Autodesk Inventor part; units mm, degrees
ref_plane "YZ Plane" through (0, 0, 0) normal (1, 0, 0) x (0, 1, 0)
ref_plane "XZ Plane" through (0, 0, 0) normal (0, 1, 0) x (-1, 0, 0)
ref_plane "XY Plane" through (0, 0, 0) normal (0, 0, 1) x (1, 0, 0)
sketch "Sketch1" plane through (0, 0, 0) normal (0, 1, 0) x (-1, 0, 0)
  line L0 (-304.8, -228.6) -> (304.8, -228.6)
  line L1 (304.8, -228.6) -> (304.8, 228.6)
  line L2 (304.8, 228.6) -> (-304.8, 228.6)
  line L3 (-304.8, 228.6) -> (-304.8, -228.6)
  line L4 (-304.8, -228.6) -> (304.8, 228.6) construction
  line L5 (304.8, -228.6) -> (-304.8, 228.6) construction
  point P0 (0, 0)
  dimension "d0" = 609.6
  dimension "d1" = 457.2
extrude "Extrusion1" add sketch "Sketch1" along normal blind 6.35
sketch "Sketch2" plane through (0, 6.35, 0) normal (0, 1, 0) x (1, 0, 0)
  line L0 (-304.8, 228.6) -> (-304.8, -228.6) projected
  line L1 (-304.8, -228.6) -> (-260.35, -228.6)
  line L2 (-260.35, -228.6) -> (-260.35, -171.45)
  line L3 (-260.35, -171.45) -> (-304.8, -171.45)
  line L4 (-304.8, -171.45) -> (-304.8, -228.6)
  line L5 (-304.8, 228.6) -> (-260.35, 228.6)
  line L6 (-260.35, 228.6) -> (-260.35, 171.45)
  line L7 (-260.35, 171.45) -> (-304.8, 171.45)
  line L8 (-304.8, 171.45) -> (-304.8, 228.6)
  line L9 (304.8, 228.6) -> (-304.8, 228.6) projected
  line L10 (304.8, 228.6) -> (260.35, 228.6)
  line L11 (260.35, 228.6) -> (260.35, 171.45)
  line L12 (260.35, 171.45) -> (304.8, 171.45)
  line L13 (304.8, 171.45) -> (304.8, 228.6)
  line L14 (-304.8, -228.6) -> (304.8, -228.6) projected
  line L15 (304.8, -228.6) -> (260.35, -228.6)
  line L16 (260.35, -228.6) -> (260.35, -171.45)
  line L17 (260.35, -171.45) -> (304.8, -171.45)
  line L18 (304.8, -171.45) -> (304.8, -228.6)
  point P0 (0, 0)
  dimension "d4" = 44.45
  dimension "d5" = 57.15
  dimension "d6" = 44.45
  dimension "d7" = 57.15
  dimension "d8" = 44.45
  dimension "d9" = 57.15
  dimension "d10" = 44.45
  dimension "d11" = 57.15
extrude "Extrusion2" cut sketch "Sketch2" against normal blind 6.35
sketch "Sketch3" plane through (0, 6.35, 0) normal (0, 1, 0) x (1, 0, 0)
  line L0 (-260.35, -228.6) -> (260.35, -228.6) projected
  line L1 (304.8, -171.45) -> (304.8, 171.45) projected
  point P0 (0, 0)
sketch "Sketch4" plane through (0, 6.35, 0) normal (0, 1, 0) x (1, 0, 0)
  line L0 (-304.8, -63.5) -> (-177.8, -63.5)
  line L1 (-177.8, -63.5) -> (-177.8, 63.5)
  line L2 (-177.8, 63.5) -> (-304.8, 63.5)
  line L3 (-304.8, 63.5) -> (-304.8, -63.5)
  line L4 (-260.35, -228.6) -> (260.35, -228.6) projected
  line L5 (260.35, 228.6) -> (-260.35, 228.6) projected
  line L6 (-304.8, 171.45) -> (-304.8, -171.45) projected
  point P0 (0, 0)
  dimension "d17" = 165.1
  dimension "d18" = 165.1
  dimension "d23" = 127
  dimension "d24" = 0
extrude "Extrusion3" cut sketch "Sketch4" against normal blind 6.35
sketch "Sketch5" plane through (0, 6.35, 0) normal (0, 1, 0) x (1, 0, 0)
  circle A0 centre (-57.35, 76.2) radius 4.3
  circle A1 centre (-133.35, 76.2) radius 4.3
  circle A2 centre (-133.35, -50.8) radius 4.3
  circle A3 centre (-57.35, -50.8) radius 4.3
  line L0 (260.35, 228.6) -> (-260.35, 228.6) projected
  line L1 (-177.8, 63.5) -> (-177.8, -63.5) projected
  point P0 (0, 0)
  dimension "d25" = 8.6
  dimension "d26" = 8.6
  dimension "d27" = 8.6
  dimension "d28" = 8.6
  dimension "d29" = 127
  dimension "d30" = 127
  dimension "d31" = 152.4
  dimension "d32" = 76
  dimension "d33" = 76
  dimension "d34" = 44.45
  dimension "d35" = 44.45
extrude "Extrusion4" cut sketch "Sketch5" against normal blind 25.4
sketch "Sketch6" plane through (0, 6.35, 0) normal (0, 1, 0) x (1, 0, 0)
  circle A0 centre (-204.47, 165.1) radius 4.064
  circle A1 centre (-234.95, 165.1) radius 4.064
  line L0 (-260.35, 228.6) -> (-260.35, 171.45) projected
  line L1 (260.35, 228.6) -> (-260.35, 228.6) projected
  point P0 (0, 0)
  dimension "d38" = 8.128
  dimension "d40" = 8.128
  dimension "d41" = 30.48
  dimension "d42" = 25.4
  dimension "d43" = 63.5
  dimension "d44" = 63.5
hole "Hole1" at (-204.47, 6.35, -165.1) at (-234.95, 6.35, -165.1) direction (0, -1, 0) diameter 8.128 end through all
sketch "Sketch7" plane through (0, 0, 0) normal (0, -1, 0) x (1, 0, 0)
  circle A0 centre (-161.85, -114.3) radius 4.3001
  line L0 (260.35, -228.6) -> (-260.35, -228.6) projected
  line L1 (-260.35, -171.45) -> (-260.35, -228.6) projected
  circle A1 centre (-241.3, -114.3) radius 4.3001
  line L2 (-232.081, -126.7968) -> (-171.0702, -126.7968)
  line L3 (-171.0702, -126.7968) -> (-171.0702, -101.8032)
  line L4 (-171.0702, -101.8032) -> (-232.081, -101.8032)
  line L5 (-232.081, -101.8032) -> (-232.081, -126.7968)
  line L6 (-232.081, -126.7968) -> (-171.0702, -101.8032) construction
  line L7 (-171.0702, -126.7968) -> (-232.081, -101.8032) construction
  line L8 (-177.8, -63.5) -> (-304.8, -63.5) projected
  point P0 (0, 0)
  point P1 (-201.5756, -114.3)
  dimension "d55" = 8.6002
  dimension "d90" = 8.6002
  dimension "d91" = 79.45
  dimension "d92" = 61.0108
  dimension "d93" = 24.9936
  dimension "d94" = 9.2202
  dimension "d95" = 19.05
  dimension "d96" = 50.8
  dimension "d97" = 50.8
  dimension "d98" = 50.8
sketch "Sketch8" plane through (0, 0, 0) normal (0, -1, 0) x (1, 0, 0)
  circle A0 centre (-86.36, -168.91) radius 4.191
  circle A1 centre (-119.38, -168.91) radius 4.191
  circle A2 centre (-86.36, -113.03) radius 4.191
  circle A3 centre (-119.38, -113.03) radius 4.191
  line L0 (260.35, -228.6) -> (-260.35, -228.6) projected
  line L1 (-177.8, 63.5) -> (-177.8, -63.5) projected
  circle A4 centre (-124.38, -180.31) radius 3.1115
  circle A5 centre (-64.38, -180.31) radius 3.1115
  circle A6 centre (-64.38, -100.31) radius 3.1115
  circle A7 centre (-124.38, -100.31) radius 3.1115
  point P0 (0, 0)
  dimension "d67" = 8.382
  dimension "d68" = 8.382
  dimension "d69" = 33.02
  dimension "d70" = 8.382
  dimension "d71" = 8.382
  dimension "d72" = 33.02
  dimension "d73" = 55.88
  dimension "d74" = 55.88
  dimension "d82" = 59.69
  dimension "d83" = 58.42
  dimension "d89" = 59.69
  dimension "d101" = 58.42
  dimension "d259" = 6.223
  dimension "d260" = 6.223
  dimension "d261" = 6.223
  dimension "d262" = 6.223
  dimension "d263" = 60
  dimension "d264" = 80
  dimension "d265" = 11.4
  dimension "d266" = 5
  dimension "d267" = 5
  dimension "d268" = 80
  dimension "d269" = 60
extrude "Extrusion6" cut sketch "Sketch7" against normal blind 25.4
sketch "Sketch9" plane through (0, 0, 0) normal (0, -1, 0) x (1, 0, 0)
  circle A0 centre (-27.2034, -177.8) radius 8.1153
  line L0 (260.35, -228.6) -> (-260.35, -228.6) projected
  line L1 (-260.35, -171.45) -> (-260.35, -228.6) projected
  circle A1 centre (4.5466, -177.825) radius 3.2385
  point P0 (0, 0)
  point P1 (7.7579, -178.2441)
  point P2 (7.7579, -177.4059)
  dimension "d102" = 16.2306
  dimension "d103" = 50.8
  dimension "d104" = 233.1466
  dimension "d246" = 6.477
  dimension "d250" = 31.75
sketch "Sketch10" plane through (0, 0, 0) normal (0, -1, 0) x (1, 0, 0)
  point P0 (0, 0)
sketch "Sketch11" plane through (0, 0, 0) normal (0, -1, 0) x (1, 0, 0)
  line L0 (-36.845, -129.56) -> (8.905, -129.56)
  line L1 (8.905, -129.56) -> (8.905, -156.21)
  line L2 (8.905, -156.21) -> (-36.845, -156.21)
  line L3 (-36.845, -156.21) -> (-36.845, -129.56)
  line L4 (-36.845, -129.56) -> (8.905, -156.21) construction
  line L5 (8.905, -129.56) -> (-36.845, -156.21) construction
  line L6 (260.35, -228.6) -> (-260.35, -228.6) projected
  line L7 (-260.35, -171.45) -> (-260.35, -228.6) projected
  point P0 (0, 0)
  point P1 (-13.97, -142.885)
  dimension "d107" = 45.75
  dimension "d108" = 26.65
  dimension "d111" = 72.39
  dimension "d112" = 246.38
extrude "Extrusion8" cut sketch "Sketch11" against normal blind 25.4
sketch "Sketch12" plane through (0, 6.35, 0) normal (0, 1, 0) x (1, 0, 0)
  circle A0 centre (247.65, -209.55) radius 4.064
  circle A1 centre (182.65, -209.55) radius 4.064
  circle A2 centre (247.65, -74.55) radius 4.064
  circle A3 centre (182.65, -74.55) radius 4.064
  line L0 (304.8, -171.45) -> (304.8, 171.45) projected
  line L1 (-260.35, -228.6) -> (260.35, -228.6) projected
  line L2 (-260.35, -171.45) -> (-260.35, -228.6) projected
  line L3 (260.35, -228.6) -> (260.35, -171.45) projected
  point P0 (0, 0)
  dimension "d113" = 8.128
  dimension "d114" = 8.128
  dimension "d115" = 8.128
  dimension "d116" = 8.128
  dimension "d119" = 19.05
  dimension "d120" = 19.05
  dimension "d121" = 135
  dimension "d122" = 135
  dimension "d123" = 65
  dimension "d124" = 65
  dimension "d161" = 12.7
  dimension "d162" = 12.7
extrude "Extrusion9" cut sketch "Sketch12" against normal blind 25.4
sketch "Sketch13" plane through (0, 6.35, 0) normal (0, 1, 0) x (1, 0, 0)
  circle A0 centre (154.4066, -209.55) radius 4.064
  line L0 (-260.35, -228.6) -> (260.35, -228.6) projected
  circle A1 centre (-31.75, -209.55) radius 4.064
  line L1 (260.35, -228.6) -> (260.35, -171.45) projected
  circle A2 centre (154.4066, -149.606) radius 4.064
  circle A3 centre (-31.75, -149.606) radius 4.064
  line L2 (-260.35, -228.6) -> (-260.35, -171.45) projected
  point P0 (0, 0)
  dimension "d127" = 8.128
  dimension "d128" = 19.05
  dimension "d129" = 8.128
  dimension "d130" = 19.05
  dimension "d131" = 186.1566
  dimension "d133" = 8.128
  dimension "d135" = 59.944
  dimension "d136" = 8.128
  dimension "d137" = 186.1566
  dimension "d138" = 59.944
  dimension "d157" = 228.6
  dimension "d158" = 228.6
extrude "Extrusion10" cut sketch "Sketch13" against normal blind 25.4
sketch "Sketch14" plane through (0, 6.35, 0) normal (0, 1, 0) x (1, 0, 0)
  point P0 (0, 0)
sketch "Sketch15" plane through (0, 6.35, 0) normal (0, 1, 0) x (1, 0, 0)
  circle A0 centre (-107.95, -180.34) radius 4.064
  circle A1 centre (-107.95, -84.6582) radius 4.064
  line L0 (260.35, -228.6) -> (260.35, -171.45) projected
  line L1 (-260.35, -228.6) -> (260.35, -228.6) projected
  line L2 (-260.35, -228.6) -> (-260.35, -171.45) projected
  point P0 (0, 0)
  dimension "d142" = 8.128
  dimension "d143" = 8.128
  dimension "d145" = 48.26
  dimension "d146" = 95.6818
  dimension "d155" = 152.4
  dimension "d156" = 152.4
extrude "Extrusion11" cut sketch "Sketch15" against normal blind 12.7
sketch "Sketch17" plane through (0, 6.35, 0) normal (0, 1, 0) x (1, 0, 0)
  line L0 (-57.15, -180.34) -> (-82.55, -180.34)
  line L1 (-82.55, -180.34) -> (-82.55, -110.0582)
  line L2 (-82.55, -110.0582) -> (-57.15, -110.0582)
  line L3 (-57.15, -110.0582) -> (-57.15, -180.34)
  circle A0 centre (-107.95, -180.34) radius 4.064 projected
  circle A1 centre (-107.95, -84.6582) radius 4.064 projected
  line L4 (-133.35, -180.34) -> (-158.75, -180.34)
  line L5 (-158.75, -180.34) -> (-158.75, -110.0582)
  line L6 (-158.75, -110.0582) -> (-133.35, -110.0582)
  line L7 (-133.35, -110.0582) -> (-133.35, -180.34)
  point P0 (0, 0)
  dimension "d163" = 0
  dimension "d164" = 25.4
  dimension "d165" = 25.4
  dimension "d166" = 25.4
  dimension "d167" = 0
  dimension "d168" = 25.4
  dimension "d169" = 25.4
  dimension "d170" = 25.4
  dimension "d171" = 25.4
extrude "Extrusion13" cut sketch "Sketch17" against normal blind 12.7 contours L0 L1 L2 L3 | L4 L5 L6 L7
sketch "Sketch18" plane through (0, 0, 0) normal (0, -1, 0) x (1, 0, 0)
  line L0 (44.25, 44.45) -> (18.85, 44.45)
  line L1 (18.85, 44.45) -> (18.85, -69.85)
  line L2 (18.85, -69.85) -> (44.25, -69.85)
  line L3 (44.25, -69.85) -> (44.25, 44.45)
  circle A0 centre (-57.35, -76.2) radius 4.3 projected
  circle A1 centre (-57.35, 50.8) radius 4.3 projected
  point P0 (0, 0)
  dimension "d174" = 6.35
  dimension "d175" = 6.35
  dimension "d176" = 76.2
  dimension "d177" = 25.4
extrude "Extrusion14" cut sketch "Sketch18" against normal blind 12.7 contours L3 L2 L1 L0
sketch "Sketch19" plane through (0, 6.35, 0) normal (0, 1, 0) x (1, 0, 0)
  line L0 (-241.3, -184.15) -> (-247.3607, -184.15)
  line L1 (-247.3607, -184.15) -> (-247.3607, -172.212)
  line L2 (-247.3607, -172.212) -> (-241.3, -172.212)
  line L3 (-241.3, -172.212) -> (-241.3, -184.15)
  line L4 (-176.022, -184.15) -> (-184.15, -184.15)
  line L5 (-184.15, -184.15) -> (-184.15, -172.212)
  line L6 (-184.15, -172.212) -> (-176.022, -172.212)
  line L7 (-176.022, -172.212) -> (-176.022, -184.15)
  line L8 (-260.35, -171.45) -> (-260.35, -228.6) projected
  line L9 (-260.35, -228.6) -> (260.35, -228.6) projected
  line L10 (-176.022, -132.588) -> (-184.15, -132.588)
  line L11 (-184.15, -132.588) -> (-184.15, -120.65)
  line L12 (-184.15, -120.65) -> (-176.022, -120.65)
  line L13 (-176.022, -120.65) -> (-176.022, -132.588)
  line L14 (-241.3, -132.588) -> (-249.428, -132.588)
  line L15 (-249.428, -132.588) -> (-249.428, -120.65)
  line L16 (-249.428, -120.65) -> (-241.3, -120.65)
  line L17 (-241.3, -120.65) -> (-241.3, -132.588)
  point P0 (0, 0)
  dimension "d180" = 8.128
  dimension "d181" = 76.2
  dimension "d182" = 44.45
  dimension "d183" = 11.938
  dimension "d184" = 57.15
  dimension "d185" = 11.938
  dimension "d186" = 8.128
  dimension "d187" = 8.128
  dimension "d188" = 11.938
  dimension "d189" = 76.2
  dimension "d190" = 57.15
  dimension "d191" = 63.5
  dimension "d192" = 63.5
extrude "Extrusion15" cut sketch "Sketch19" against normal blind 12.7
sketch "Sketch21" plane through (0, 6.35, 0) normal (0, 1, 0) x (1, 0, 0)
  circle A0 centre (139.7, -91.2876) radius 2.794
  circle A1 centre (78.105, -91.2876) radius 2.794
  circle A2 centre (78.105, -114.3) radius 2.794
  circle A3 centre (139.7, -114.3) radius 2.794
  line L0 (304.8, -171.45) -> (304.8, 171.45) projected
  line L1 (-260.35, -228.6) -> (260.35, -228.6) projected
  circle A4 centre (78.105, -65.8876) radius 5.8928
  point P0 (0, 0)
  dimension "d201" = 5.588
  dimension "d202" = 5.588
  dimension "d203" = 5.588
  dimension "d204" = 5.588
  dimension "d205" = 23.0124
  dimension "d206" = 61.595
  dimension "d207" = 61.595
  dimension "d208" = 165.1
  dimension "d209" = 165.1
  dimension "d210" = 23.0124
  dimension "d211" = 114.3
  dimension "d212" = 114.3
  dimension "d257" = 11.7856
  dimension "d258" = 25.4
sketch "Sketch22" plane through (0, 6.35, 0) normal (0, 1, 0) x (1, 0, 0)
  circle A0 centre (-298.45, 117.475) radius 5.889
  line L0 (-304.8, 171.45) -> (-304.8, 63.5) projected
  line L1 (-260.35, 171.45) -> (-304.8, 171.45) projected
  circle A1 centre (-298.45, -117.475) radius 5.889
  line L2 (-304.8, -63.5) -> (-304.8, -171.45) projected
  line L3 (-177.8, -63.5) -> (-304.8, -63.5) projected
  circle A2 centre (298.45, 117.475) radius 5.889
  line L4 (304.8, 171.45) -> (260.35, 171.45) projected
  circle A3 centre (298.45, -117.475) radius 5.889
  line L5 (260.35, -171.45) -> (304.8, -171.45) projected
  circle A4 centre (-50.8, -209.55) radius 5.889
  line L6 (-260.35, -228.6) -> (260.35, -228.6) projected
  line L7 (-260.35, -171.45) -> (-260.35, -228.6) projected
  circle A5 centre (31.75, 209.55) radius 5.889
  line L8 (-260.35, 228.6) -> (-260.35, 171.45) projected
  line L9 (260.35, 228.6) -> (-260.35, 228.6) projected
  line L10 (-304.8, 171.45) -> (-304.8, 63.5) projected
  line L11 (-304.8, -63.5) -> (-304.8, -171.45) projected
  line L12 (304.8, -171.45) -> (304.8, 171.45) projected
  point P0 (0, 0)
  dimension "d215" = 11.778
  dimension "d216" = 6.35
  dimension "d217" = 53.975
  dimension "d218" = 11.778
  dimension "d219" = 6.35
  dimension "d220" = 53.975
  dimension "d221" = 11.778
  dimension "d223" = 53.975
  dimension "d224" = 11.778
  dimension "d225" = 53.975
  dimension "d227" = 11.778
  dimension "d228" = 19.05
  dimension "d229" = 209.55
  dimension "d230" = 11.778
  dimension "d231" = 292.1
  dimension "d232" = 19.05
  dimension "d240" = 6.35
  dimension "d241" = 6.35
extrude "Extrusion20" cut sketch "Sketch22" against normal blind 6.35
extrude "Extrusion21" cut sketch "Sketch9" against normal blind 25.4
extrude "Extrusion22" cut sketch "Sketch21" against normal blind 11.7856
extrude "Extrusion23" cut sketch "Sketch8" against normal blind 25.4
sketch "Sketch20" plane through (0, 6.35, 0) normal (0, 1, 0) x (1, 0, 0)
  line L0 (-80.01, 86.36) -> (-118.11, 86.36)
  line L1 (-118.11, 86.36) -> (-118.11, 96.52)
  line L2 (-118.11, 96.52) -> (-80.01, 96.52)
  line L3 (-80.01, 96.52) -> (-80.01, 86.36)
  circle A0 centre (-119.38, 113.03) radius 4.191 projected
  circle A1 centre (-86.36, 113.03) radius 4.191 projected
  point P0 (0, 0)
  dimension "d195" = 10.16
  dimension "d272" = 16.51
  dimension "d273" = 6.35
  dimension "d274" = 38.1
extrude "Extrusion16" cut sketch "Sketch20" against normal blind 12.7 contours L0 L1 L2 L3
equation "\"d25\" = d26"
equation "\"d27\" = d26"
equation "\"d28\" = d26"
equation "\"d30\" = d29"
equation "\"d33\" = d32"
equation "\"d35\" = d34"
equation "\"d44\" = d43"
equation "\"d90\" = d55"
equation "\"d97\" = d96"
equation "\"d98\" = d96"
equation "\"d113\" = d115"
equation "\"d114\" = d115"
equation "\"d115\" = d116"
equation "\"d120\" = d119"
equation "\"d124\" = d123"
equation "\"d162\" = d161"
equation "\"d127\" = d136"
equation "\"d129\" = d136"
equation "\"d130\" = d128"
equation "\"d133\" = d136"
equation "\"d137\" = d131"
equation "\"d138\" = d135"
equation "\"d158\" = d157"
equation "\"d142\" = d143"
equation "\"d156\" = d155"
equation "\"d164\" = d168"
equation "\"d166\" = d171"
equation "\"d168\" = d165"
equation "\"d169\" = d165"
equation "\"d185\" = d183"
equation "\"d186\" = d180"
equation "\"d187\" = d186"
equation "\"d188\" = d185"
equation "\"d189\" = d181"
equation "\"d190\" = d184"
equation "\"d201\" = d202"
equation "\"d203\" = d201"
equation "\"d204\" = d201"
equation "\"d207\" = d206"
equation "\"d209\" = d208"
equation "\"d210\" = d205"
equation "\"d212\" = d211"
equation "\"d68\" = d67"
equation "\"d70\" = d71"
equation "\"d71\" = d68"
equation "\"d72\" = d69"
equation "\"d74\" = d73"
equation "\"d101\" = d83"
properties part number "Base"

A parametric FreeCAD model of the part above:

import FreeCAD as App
import Part
import Sketcher
Q = App.Units.Quantity


def add_polygon(sketch, points):
    """Adds a closed chain of lines whose ends are joined by coincident constraints."""
    first, n = sketch.GeometryCount, len(points)
    for a, b in zip(points, points[1:] + points[:1]):
        sketch.addGeometry(Part.LineSegment(App.Vector(*a, 0), App.Vector(*b, 0)), False)
    for i in range(n):
        sketch.addConstraint(Sketcher.Constraint("Coincident", first + i, 2, first + (i + 1) % n, 1))

doc = App.newDocument("Part")
params = doc.addObject("Spreadsheet::Sheet", "Params")
for row, (alias, value) in enumerate([
    ("sketch1_width", "24 in"),
    ("sketch1_height", "18 in"),
    ("pad1_length", "0.25 in"),
    ("sketch2_width", "1.75 in"),
    ("sketch2_height", "2.25 in"),
    ("pocket1_length", "0.25 in"),
    ("sketch3_width", "5 in"),
    ("pocket2_length", "0.25 in"),
    ("pocket3_length", "1 in"),
    ("sketch5_diameter", "0.32 in"),
    ("hole_diameter", "0.32 in"),
    ("sketch6_width", "2.402 in"),
    ("sketch6_height", "0.984 in"),
    ("pocket4_length", "1 in"),
    ("pocket5_length", "1 in"),
    ("sketch8_diameter", "0.32 in"),
    ("pocket6_length", "1 in"),
    ("sketch9_diameter", "0.32 in"),
    ("pocket7_length", "1 in"),
    ("sketch10_diameter", "0.32 in"),
    ("pocket8_length", "0.5 in"),
    ("sketch11_width", "1 in"),
    ("sketch11_height", "2.767 in"),
    ("pocket9_length", "0.5 in"),
    ("sketch12_width", "1 in"),
    ("sketch12_height", "4.5 in"),
    ("pocket10_length", "0.5 in"),
    ("sketch13_width", "0.32 in"),
    ("sketch13_height", "0.47 in"),
    ("pocket11_length", "0.5 in"),
    ("pocket12_length", "0.25 in"),
    ("sketch15_diameter", "0.639 in"),
    ("sketch15_diameter2", "0.255 in"),
    ("pocket13_length", "1 in"),
    ("sketch16_diameter", "0.22 in"),
    ("sketch16_diameter2", "0.464 in"),
    ("pocket14_length", "0.464 in"),
    ("sketch17_diameter", "0.33 in"),
    ("sketch17_diameter2", "0.245 in"),
    ("pocket15_length", "1 in"),
    ("sketch18_width", "1.5 in"),
    ("sketch18_height", "0.4 in"),
    ("pocket16_length", "0.5 in"),
], start=1):
    params.set(f"A{row}", alias)
    params.set(f"B{row}", "=" + value)
    params.setAlias(f"B{row}", alias)

body = doc.addObject("PartDesign::Body", "Body")

sketch1 = doc.addObject("Sketcher::SketchObject", "Sketch")
body.addObject(sketch1)
sketch1.AttachmentSupport = (doc.XZ_Plane, [""])
sketch1.MapMode = "FlatFace"
add_polygon(sketch1, [(305, 229), (305, -229), (-305, -229), (-305, 229)])
sketch1.addConstraint([
    Sketcher.Constraint("Vertical", 0),
    Sketcher.Constraint("Horizontal", 1),
    Sketcher.Constraint("Vertical", 2),
    Sketcher.Constraint("Horizontal", 3),
    Sketcher.Constraint("Symmetric", 0, 2, 2, 2, -1, 1),
    Sketcher.Constraint("DistanceX", 1, 2, 1, 1, Q("24 in")),
    Sketcher.Constraint("DistanceY", 0, 2, 0, 1, Q("18 in")),
])
sketch1.setExpression("Constraints[9]", "Params.sketch1_width")
sketch1.setExpression("Constraints[10]", "Params.sketch1_height")
pad1 = doc.addObject("PartDesign::Pad", "Pad")
body.addObject(pad1)
pad1.Profile = sketch1
pad1.setExpression("Length", "Params.pad1_length")
pad1.Reversed = True

sketch2 = doc.addObject("Sketcher::SketchObject", "Sketch001")
body.addObject(sketch2)
sketch2.AttachmentSupport = (doc.XZ_Plane, [""])
sketch2.MapMode = "FlatFace"
sketch2.AttachmentOffset = App.Placement(App.Vector(0, 0, -0.25 * 25.4), App.Rotation())
add_polygon(sketch2, [(-260, -229), (-305, -229), (-305, -171), (-260, -171)])
add_polygon(sketch2, [(305, -229), (260, -229), (260, -171), (305, -171)])
add_polygon(sketch2, [(260, 171), (260, 229), (305, 229), (305, 171)])
add_polygon(sketch2, [(-260, 171), (-305, 171), (-305, 229), (-260, 229)])
sketch2.addConstraint([
    Sketcher.Constraint("Horizontal", 0),
    Sketcher.Constraint("Vertical", 1),
    Sketcher.Constraint("Horizontal", 2),
    Sketcher.Constraint("Vertical", 3),
    Sketcher.Constraint("Horizontal", 4),
    Sketcher.Constraint("Vertical", 5),
    Sketcher.Constraint("Horizontal", 6),
    Sketcher.Constraint("Vertical", 7),
    Sketcher.Constraint("Vertical", 8),
    Sketcher.Constraint("Horizontal", 9),
    Sketcher.Constraint("Vertical", 10),
    Sketcher.Constraint("Horizontal", 11),
    Sketcher.Constraint("Horizontal", 12),
    Sketcher.Constraint("Vertical", 13),
    Sketcher.Constraint("Horizontal", 14),
    Sketcher.Constraint("Vertical", 15),
    Sketcher.Constraint("Symmetric", 3, 2, 8, 2, -1, 1),
    Sketcher.Constraint("Symmetric", 1, 2, 10, 2, -1, 1),
    Sketcher.Constraint("Symmetric", 6, 2, 12, 2, -1, 1),
    Sketcher.Constraint("Symmetric", 4, 2, 14, 2, -1, 1),
    Sketcher.Constraint("Symmetric", 3, 2, 4, 2, -2),
    Sketcher.Constraint("Symmetric", 1, 2, 6, 2, -2),
    Sketcher.Constraint("DistanceX", 0, 2, 0, 1, Q("1.75 in")),
    Sketcher.Constraint("DistanceY", 1, 1, 1, 2, Q("2.25 in")),
    Sketcher.Constraint("DistanceX", 0, 2, -1, 1, Q("12 in")),
    Sketcher.Constraint("DistanceY", 0, 2, -1, 1, Q("9 in")),
])
sketch2.setExpression("Constraints[38]", "Params.sketch2_width")
sketch2.setExpression("Constraints[39]", "Params.sketch2_height")
pocket1 = doc.addObject("PartDesign::Pocket", "Pocket")
body.addObject(pocket1)
pocket1.Profile = sketch2
pocket1.setExpression("Length", "Params.pocket1_length")
pocket1.Reversed = True

sketch3 = doc.addObject("Sketcher::SketchObject", "Sketch002")
body.addObject(sketch3)
sketch3.AttachmentSupport = (doc.XZ_Plane, [""])
sketch3.MapMode = "FlatFace"
sketch3.AttachmentOffset = App.Placement(App.Vector(0, 0, -0.25 * 25.4), App.Rotation())
add_polygon(sketch3, [(-305, -64), (-305, 64), (-178, 64), (-178, -64)])
sketch3.addConstraint([
    Sketcher.Constraint("Vertical", 0),
    Sketcher.Constraint("Horizontal", 1),
    Sketcher.Constraint("Vertical", 2),
    Sketcher.Constraint("Horizontal", 3),
    Sketcher.Constraint("Equal", 3, 0),
    Sketcher.Constraint("DistanceX", 1, 1, 1, 2, Q("5 in")),
    Sketcher.Constraint("DistanceX", 0, 2, -1, 1, Q("12 in")),
    Sketcher.Constraint("DistanceY", -1, 1, 0, 2, Q("2.5 in")),
])
sketch3.setExpression("Constraints[9]", "Params.sketch3_width")
pocket2 = doc.addObject("PartDesign::Pocket", "Pocket001")
body.addObject(pocket2)
pocket2.Profile = sketch3
pocket2.setExpression("Length", "Params.pocket2_length")
pocket2.Reversed = True

sketch4 = doc.addObject("Sketcher::SketchObject", "Sketch003")
body.addObject(sketch4)
sketch4.AttachmentSupport = (doc.XZ_Plane, [""])
sketch4.MapMode = "FlatFace"
sketch4.AttachmentOffset = App.Placement(App.Vector(0, 0, -0.25 * 25.4), App.Rotation())
sketch4.addGeometry([
    Part.Circle(App.Vector(-57.4, -76.2, 0), App.Vector(0, 0, 1), 4.3),
    Part.Circle(App.Vector(-133.3, -76.2, 0), App.Vector(0, 0, 1), 4.3),
    Part.Circle(App.Vector(-133.3, 50.8, 0), App.Vector(0, 0, 1), 4.3),
    Part.Circle(App.Vector(-57.4, 50.8, 0), App.Vector(0, 0, 1), 4.3),
], False)
sketch4.addConstraint([
    Sketcher.Constraint("Equal", 0, 1),
    Sketcher.Constraint("Equal", 1, 2),
    Sketcher.Constraint("Equal", 2, 3),
    Sketcher.Constraint("Horizontal", 0, 3, 1, 3),
    Sketcher.Constraint("Horizontal", 2, 3, 3, 3),
    Sketcher.Constraint("Vertical", 1, 3, 2, 3),
    Sketcher.Constraint("Vertical", 0, 3, 3, 3),
    Sketcher.Constraint("DistanceY", 1, 3, 2, 3, Q("5 in")),
    Sketcher.Constraint("Diameter", 0, Q("8.6 mm")),
    Sketcher.Constraint("DistanceY", 0, 3, -1, 1, Q("3 in")),
    Sketcher.Constraint("DistanceX", 1, 3, -1, 1, Q("5.25 in")),
    Sketcher.Constraint("DistanceX", 1, 3, 0, 3, Q("76 mm")),
])
pocket3 = doc.addObject("PartDesign::Pocket", "Pocket002")
body.addObject(pocket3)
pocket3.Profile = sketch4
pocket3.setExpression("Length", "Params.pocket3_length")
pocket3.Reversed = True

sketch5 = doc.addObject("Sketcher::SketchObject", "Sketch004")
body.addObject(sketch5)
sketch5.AttachmentSupport = (doc.XZ_Plane, [""])
sketch5.MapMode = "FlatFace"
sketch5.AttachmentOffset = App.Placement(App.Vector(0, 0, -0.25 * 25.4), App.Rotation())
sketch5.addGeometry([
    Part.Circle(App.Vector(-204.5, -165.1, 0), App.Vector(0, 0, 1), 4.1),
    Part.Circle(App.Vector(-234.9, -165.1, 0), App.Vector(0, 0, 1), 4.1),
], False)
sketch5.addConstraint([
    Sketcher.Constraint("Equal", 0, 1),
    Sketcher.Constraint("Horizontal", 0, 3, 1, 3),
    Sketcher.Constraint("Diameter", 0, Q("0.32 in")),
    Sketcher.Constraint("DistanceY", 0, 3, -1, 1, Q("6.5 in")),
    Sketcher.Constraint("DistanceX", 1, 3, 0, 3, Q("1.2 in")),
    Sketcher.Constraint("DistanceX", 0, 3, -1, 1, Q("8.05 in")),
])
sketch5.setExpression("Constraints[2]", "Params.sketch5_diameter")
doc.recompute()
hole = doc.addObject("PartDesign::Hole", "Hole")
body.addObject(hole)
hole.Profile = sketch5
hole.ThreadType = "None"
hole.setExpression("Diameter", "Params.hole_diameter")
hole.DepthType = "ThroughAll"
hole.Reversed = True

sketch6 = doc.addObject("Sketcher::SketchObject", "Sketch005")
body.addObject(sketch6)
sketch6.AttachmentSupport = (doc.XZ_Plane, [""])
sketch6.MapMode = "FlatFace"
sketch6.addGeometry(Part.Circle(App.Vector(-161.8, -114.3, 0), App.Vector(0, 0, 1), 4.3), False)
sketch6.addGeometry(Part.Circle(App.Vector(-241.3, -114.3, 0), App.Vector(0, 0, 1), 4.3), False)
add_polygon(sketch6, [(-232.1, -101.8), (-232.1, -126.8), (-171.1, -126.8), (-171.1, -101.8)])
sketch6.addConstraint([
    Sketcher.Constraint("Vertical", 2),
    Sketcher.Constraint("Horizontal", 3),
    Sketcher.Constraint("Vertical", 4),
    Sketcher.Constraint("Horizontal", 5),
    Sketcher.Constraint("Equal", 0, 1),
    Sketcher.Constraint("Horizontal", 0, 3, 1, 3),
    Sketcher.Constraint("Diameter", 0, Q("0.3386 in")),
    Sketcher.Constraint("DistanceX", 3, 1, 3, 2, Q("2.402 in")),
    Sketcher.Constraint("DistanceY", 2, 2, 2, 1, Q("0.984 in")),
    Sketcher.Constraint("DistanceX", 3, 2, 0, 3, Q("0.363 in")),
    Sketcher.Constraint("DistanceY", 0, 3, -1, 1, Q("4.5 in")),
    Sketcher.Constraint("DistanceX", 1, 3, -1, 1, Q("9.5 in")),
    Sketcher.Constraint("DistanceX", 1, 3, 0, 3, Q("79.45 mm")),
    Sketcher.Constraint("DistanceY", 2, 2, -1, 1, Q("4.992 in")),
])
sketch6.setExpression("Constraints[11]", "Params.sketch6_width")
sketch6.setExpression("Constraints[12]", "Params.sketch6_height")
pocket4 = doc.addObject("PartDesign::Pocket", "Pocket003")
body.addObject(pocket4)
pocket4.Profile = sketch6
pocket4.setExpression("Length", "Params.pocket4_length")

sketch7 = doc.addObject("Sketcher::SketchObject", "Sketch006")
body.addObject(sketch7)
sketch7.AttachmentSupport = (doc.XZ_Plane, [""])
sketch7.MapMode = "FlatFace"
add_polygon(sketch7, [(9, -130), (-37, -130), (-37, -156), (9, -156)])
sketch7.addConstraint([
    Sketcher.Constraint("Horizontal", 0),
    Sketcher.Constraint("Vertical", 1),
    Sketcher.Constraint("Horizontal", 2),
    Sketcher.Constraint("Vertical", 3),
    Sketcher.Constraint("DistanceX", 0, 2, 0, 1, Q("45.75 mm")),
    Sketcher.Constraint("DistanceY", 1, 2, 1, 1, Q("26.65 mm")),
    Sketcher.Constraint("DistanceY", 1, 2, -1, 1, Q("6.15 in")),
    Sketcher.Constraint("DistanceX", 0, 2, -1, 1, Q("1.4506 in")),
])
pocket5 = doc.addObject("PartDesign::Pocket", "Pocket004")
body.addObject(pocket5)
pocket5.Profile = sketch7
pocket5.setExpression("Length", "Params.pocket5_length")

sketch8 = doc.addObject("Sketcher::SketchObject", "Sketch007")
body.addObject(sketch8)
sketch8.AttachmentSupport = (doc.XZ_Plane, [""])
sketch8.MapMode = "FlatFace"
sketch8.AttachmentOffset = App.Placement(App.Vector(0, 0, -0.25 * 25.4), App.Rotation())
sketch8.addGeometry([
    Part.Circle(App.Vector(247.7, 209.6, 0), App.Vector(0, 0, 1), 4.1),
    Part.Circle(App.Vector(182.7, 209.6, 0), App.Vector(0, 0, 1), 4.1),
    Part.Circle(App.Vector(247.7, 74.5, 0), App.Vector(0, 0, 1), 4.1),
    Part.Circle(App.Vector(182.7, 74.5, 0), App.Vector(0, 0, 1), 4.1),
], False)
sketch8.addConstraint([
    Sketcher.Constraint("Equal", 0, 1),
    Sketcher.Constraint("Equal", 1, 2),
    Sketcher.Constraint("Equal", 2, 3),
    Sketcher.Constraint("Horizontal", 0, 3, 1, 3),
    Sketcher.Constraint("Horizontal", 2, 3, 3, 3),
    Sketcher.Constraint("Vertical", 0, 3, 2, 3),
    Sketcher.Constraint("Vertical", 1, 3, 3, 3),
    Sketcher.Constraint("Diameter", 0, Q("0.32 in")),
    Sketcher.Constraint("DistanceX", -1, 1, 0, 3, Q("9.75 in")),
    Sketcher.Constraint("DistanceY", -1, 1, 0, 3, Q("8.25 in")),
    Sketcher.Constraint("DistanceX", 1, 3, 0, 3, Q("65 mm")),
    Sketcher.Constraint("DistanceY", 2, 3, 0, 3, Q("135 mm")),
])
sketch8.setExpression("Constraints[7]", "Params.sketch8_diameter")
pocket6 = doc.addObject("PartDesign::Pocket", "Pocket005")
body.addObject(pocket6)
pocket6.Profile = sketch8
pocket6.setExpression("Length", "Params.pocket6_length")
pocket6.Reversed = True

sketch9 = doc.addObject("Sketcher::SketchObject", "Sketch008")
body.addObject(sketch9)
sketch9.AttachmentSupport = (doc.XZ_Plane, [""])
sketch9.MapMode = "FlatFace"
sketch9.AttachmentOffset = App.Placement(App.Vector(0, 0, -0.25 * 25.4), App.Rotation())
sketch9.addGeometry([
    Part.Circle(App.Vector(154.4, 209.6, 0), App.Vector(0, 0, 1), 4.1),
    Part.Circle(App.Vector(-31.8, 209.6, 0), App.Vector(0, 0, 1), 4.1),
    Part.Circle(App.Vector(154.4, 149.6, 0), App.Vector(0, 0, 1), 4.1),
    Part.Circle(App.Vector(-31.8, 149.6, 0), App.Vector(0, 0, 1), 4.1),
], False)
sketch9.addConstraint([
    Sketcher.Constraint("Equal", 0, 1),
    Sketcher.Constraint("Equal", 1, 2),
    Sketcher.Constraint("Equal", 2, 3),
    Sketcher.Constraint("Horizontal", 0, 3, 1, 3),
    Sketcher.Constraint("Horizontal", 2, 3, 3, 3),
    Sketcher.Constraint("Vertical", 0, 3, 2, 3),
    Sketcher.Constraint("Vertical", 1, 3, 3, 3),
    Sketcher.Constraint("Diameter", 0, Q("0.32 in")),
    Sketcher.Constraint("DistanceY", 2, 3, 0, 3, Q("2.36 in")),
    Sketcher.Constraint("DistanceX", 1, 3, 0, 3, Q("7.329 in")),
    Sketcher.Constraint("DistanceY", -1, 1, 0, 3, Q("8.25 in")),
    Sketcher.Constraint("DistanceX", 1, 3, -1, 1, Q("1.25 in")),
])
sketch9.setExpression("Constraints[7]", "Params.sketch9_diameter")
pocket7 = doc.addObject("PartDesign::Pocket", "Pocket006")
body.addObject(pocket7)
pocket7.Profile = sketch9
pocket7.setExpression("Length", "Params.pocket7_length")
pocket7.Reversed = True

sketch10 = doc.addObject("Sketcher::SketchObject", "Sketch009")
body.addObject(sketch10)
sketch10.AttachmentSupport = (doc.XZ_Plane, [""])
sketch10.MapMode = "FlatFace"
sketch10.AttachmentOffset = App.Placement(App.Vector(0, 0, -0.25 * 25.4), App.Rotation())
sketch10.addGeometry([
    Part.Circle(App.Vector(-108, 180.3, 0), App.Vector(0, 0, 1), 4.1),
    Part.Circle(App.Vector(-108, 84.7, 0), App.Vector(0, 0, 1), 4.1),
], False)
sketch10.addConstraint([
    Sketcher.Constraint("Equal", 0, 1),
    Sketcher.Constraint("Vertical", 0, 3, 1, 3),
    Sketcher.Constraint("Diameter", 0, Q("0.32 in")),
    Sketcher.Constraint("DistanceY", 1, 3, 0, 3, Q("3.767 in")),
    Sketcher.Constraint("DistanceY", -1, 1, 0, 3, Q("7.1 in")),
    Sketcher.Constraint("DistanceX", 0, 3, -1, 1, Q("4.25 in")),
])
sketch10.setExpression("Constraints[2]", "Params.sketch10_diameter")
pocket8 = doc.addObject("PartDesign::Pocket", "Pocket007")
body.addObject(pocket8)
pocket8.Profile = sketch10
pocket8.setExpression("Length", "Params.pocket8_length")
pocket8.Reversed = True

sketch11 = doc.addObject("Sketcher::SketchObject", "Sketch010")
body.addObject(sketch11)
sketch11.AttachmentSupport = (doc.XZ_Plane, [""])
sketch11.MapMode = "FlatFace"
sketch11.AttachmentOffset = App.Placement(App.Vector(0, 0, -0.25 * 25.4), App.Rotation())
add_polygon(sketch11, [(-83, 180), (-57, 180), (-57, 110), (-83, 110)])
add_polygon(sketch11, [(-159, 180), (-133, 180), (-133, 110), (-159, 110)])
sketch11.addConstraint([
    Sketcher.Constraint("Horizontal", 0),
    Sketcher.Constraint("Vertical", 1),
    Sketcher.Constraint("Horizontal", 2),
    Sketcher.Constraint("Vertical", 3),
    Sketcher.Constraint("Horizontal", 4),
    Sketcher.Constraint("Vertical", 5),
    Sketcher.Constraint("Horizontal", 6),
    Sketcher.Constraint("Vertical", 7),
    Sketcher.Constraint("Horizontal", 3, 2, 4, 2),
    Sketcher.Constraint("Horizontal", 2, 2, 5, 2),
    Sketcher.Constraint("Equal", 2, 4),
    Sketcher.Constraint("DistanceX", 0, 1, 0, 2, Q("1 in")),
    Sketcher.Constraint("DistanceX", 4, 2, 3, 2, Q("2 in")),
    Sketcher.Constraint("DistanceY", -1, 1, 0, 2, Q("7.1 in")),
    Sketcher.Constraint("DistanceY", 1, 2, 1, 1, Q("2.767 in")),
    Sketcher.Constraint("DistanceX", 0, 2, -1, 1, Q("2.25 in")),
])
sketch11.setExpression("Constraints[19]", "Params.sketch11_width")
sketch11.setExpression("Constraints[22]", "Params.sketch11_height")
pocket9 = doc.addObject("PartDesign::Pocket", "Pocket008")
body.addObject(pocket9)
pocket9.Profile = sketch11
pocket9.setExpression("Length", "Params.pocket9_length")
pocket9.Reversed = True

sketch12 = doc.addObject("Sketcher::SketchObject", "Sketch011")
body.addObject(sketch12)
sketch12.AttachmentSupport = (doc.XZ_Plane, [""])
sketch12.MapMode = "FlatFace"
add_polygon(sketch12, [(44, -70), (44, 44), (19, 44), (19, -70)])
sketch12.addConstraint([
    Sketcher.Constraint("Vertical", 0),
    Sketcher.Constraint("Horizontal", 1),
    Sketcher.Constraint("Vertical", 2),
    Sketcher.Constraint("Horizontal", 3),
    Sketcher.Constraint("DistanceX", 1, 2, 1, 1, Q("1 in")),
    Sketcher.Constraint("DistanceY", 0, 1, 0, 2, Q("4.5 in")),
    Sketcher.Constraint("DistanceY", -1, 1, 0, 2, Q("1.75 in")),
    Sketcher.Constraint("DistanceX", -1, 1, 0, 2, Q("44.25 mm")),
])
sketch12.setExpression("Constraints[8]", "Params.sketch12_width")
sketch12.setExpression("Constraints[9]", "Params.sketch12_height")
pocket10 = doc.addObject("PartDesign::Pocket", "Pocket009")
body.addObject(pocket10)
pocket10.Profile = sketch12
pocket10.setExpression("Length", "Params.pocket10_length")

sketch13 = doc.addObject("Sketcher::SketchObject", "Sketch012")
body.addObject(sketch13)
sketch13.AttachmentSupport = (doc.XZ_Plane, [""])
sketch13.MapMode = "FlatFace"
sketch13.AttachmentOffset = App.Placement(App.Vector(0, 0, -0.25 * 25.4), App.Rotation())
add_polygon(sketch13, [(-247, 184), (-241, 184), (-241, 172), (-247, 172)])
add_polygon(sketch13, [(-184, 184), (-176, 184), (-176, 172), (-184, 172)])
add_polygon(sketch13, [(-184, 133), (-176, 133), (-176, 121), (-184, 121)])
add_polygon(sketch13, [(-249, 133), (-241, 133), (-241, 121), (-249, 121)])
sketch13.addConstraint([
    Sketcher.Constraint("Horizontal", 0),
    Sketcher.Constraint("Vertical", 1),
    Sketcher.Constraint("Horizontal", 2),
    Sketcher.Constraint("Vertical", 3),
    Sketcher.Constraint("Horizontal", 4),
    Sketcher.Constraint("Vertical", 5),
    Sketcher.Constraint("Horizontal", 6),
    Sketcher.Constraint("Vertical", 7),
    Sketcher.Constraint("Horizontal", 8),
    Sketcher.Constraint("Vertical", 9),
    Sketcher.Constraint("Horizontal", 10),
    Sketcher.Constraint("Vertical", 11),
    Sketcher.Constraint("Horizontal", 12),
    Sketcher.Constraint("Vertical", 13),
    Sketcher.Constraint("Horizontal", 14),
    Sketcher.Constraint("Vertical", 15),
    Sketcher.Constraint("Horizontal", 3, 2, 4, 2),
    Sketcher.Constraint("Horizontal", 2, 2, 5, 2),
    Sketcher.Constraint("Horizontal", 11, 2, 12, 2),
    Sketcher.Constraint("Horizontal", 10, 2, 13, 2),
    Sketcher.Constraint("Vertical", 5, 2, 8, 2),
    Sketcher.Constraint("Vertical", 7, 2, 10, 2),
    Sketcher.Constraint("Vertical", 1, 2, 12, 2),
    Sketcher.Constraint("Equal", 10, 12),
    Sketcher.Constraint("Equal", 7, 9),
    Sketcher.Constraint("DistanceX", 4, 1, 4, 2, Q("0.32 in")),
    Sketcher.Constraint("DistanceY", 1, 2, 1, 1, Q("0.47 in")),
    Sketcher.Constraint("DistanceY", 9, 2, 4, 2, Q("2.5 in")),
    Sketcher.Constraint("DistanceX", 1, 2, 6, 2, Q("2.25 in")),
    Sketcher.Constraint("DistanceX", 0, 2, -1, 1, Q("9.5 in")),
    Sketcher.Constraint("DistanceY", -1, 1, 0, 2, Q("7.25 in")),
    Sketcher.Constraint("DistanceX", 0, 1, 0, 2, Q("0.2386 in")),
])
sketch13.setExpression("Constraints[41]", "Params.sketch13_width")
sketch13.setExpression("Constraints[42]", "Params.sketch13_height")
pocket11 = doc.addObject("PartDesign::Pocket", "Pocket010")
body.addObject(pocket11)
pocket11.Profile = sketch13
pocket11.setExpression("Length", "Params.pocket11_length")
pocket11.Reversed = True

sketch14 = doc.addObject("Sketcher::SketchObject", "Sketch013")
body.addObject(sketch14)
sketch14.AttachmentSupport = (doc.XZ_Plane, [""])
sketch14.MapMode = "FlatFace"
sketch14.AttachmentOffset = App.Placement(App.Vector(0, 0, -0.25 * 25.4), App.Rotation())
sketch14.addGeometry([
    Part.Circle(App.Vector(-298, -117, 0), App.Vector(0, 0, 1), 6),
    Part.Circle(App.Vector(-298, 117, 0), App.Vector(0, 0, 1), 6),
    Part.Circle(App.Vector(298, -117, 0), App.Vector(0, 0, 1), 6),
    Part.Circle(App.Vector(298, 117, 0), App.Vector(0, 0, 1), 6),
    Part.Circle(App.Vector(-51, 210, 0), App.Vector(0, 0, 1), 6),
    Part.Circle(App.Vector(32, -210, 0), App.Vector(0, 0, 1), 6),
], False)
sketch14.addConstraint([
    Sketcher.Constraint("Equal", 0, 1),
    Sketcher.Constraint("Equal", 1, 2),
    Sketcher.Constraint("Equal", 2, 3),
    Sketcher.Constraint("Equal", 3, 4),
    Sketcher.Constraint("Equal", 4, 5),
    Sketcher.Constraint("Symmetric", 1, 3, 2, 3, -1, 1),
    Sketcher.Constraint("Symmetric", 0, 3, 3, 3, -1, 1),
    Sketcher.Constraint("Symmetric", 0, 3, 2, 3, -2),
    Sketcher.Constraint("Diameter", 0, Q("0.4637 in")),
    Sketcher.Constraint("DistanceY", -1, 1, 4, 3, Q("8.25 in")),
    Sketcher.Constraint("DistanceY", 5, 3, -1, 1, Q("8.25 in")),
    Sketcher.Constraint("DistanceX", 4, 3, -1, 1, Q("2 in")),
    Sketcher.Constraint("DistanceX", 0, 3, 5, 3, Q("13 in")),
    Sketcher.Constraint("DistanceX", 0, 3, 2, 3, Q("23.5 in")),
    Sketcher.Constraint("DistanceY", 0, 3, 1, 3, Q("9.25 in")),
])
pocket12 = doc.addObject("PartDesign::Pocket", "Pocket011")
body.addObject(pocket12)
pocket12.Profile = sketch14
pocket12.setExpression("Length", "Params.pocket12_length")
pocket12.Reversed = True

sketch15 = doc.addObject("Sketcher::SketchObject", "Sketch014")
body.addObject(sketch15)
sketch15.AttachmentSupport = (doc.XZ_Plane, [""])
sketch15.MapMode = "FlatFace"
sketch15.addGeometry([
    Part.Circle(App.Vector(-27.2, -177.8, 0), App.Vector(0, 0, 1), 8.1),
    Part.Circle(App.Vector(4.5, -177.8, 0), App.Vector(0, 0, 1), 3.2),
], False)
sketch15.addConstraint([
    Sketcher.Constraint("Diameter", 0, Q("0.639 in")),
    Sketcher.Constraint("Diameter", 1, Q("0.255 in")),
    Sketcher.Constraint("DistanceX", 0, 3, 1, 3, Q("1.25 in")),
    Sketcher.Constraint("DistanceY", 0, 3, -1, 1, Q("7 in")),
    Sketcher.Constraint("DistanceX", 0, 3, -1, 1, Q("1.071 in")),
    Sketcher.Constraint("DistanceY", 1, 3, -1, 1, Q("177.825 mm")),
])
sketch15.setExpression("Constraints[0]", "Params.sketch15_diameter")
sketch15.setExpression("Constraints[1]", "Params.sketch15_diameter2")
pocket13 = doc.addObject("PartDesign::Pocket", "Pocket012")
body.addObject(pocket13)
pocket13.Profile = sketch15
pocket13.setExpression("Length", "Params.pocket13_length")

sketch16 = doc.addObject("Sketcher::SketchObject", "Sketch015")
body.addObject(sketch16)
sketch16.AttachmentSupport = (doc.XZ_Plane, [""])
sketch16.MapMode = "FlatFace"
sketch16.AttachmentOffset = App.Placement(App.Vector(0, 0, -0.25 * 25.4), App.Rotation())
sketch16.addGeometry([
    Part.Circle(App.Vector(139.7, 91.3, 0), App.Vector(0, 0, 1), 2.8),
    Part.Circle(App.Vector(78.1, 91.3, 0), App.Vector(0, 0, 1), 2.8),
    Part.Circle(App.Vector(78.1, 114.3, 0), App.Vector(0, 0, 1), 2.8),
    Part.Circle(App.Vector(139.7, 114.3, 0), App.Vector(0, 0, 1), 2.8),
    Part.Circle(App.Vector(78.1, 65.9, 0), App.Vector(0, 0, 1), 5.9),
], False)
sketch16.addConstraint([
    Sketcher.Constraint("Equal", 0, 1),
    Sketcher.Constraint("Equal", 1, 2),
    Sketcher.Constraint("Equal", 2, 3),
    Sketcher.Constraint("Horizontal", 0, 3, 1, 3),
    Sketcher.Constraint("Horizontal", 2, 3, 3, 3),
    Sketcher.Constraint("Vertical", 1, 3, 2, 3),
    Sketcher.Constraint("Vertical", 0, 3, 3, 3),
    Sketcher.Constraint("Vertical", 2, 3, 4, 3),
    Sketcher.Constraint("Diameter", 0, Q("0.22 in")),
    Sketcher.Constraint("Diameter", 4, Q("0.464 in")),
    Sketcher.Constraint("DistanceY", 4, 3, 1, 3, Q("1 in")),
    Sketcher.Constraint("DistanceY", -1, 1, 2, 3, Q("4.5 in")),
    Sketcher.Constraint("DistanceX", 1, 3, 0, 3, Q("2.425 in")),
    Sketcher.Constraint("DistanceY", 1, 3, 2, 3, Q("0.906 in")),
    Sketcher.Constraint("DistanceX", -1, 1, 0, 3, Q("5.5 in")),
])
sketch16.setExpression("Constraints[8]", "Params.sketch16_diameter")
sketch16.setExpression("Constraints[9]", "Params.sketch16_diameter2")
pocket14 = doc.addObject("PartDesign::Pocket", "Pocket013")
body.addObject(pocket14)
pocket14.Profile = sketch16
pocket14.setExpression("Length", "Params.pocket14_length")
pocket14.Reversed = True

sketch17 = doc.addObject("Sketcher::SketchObject", "Sketch016")
body.addObject(sketch17)
sketch17.AttachmentSupport = (doc.XZ_Plane, [""])
sketch17.MapMode = "FlatFace"
sketch17.addGeometry([
    Part.Circle(App.Vector(-86.4, -168.9, 0), App.Vector(0, 0, 1), 4.2),
    Part.Circle(App.Vector(-119.4, -168.9, 0), App.Vector(0, 0, 1), 4.2),
    Part.Circle(App.Vector(-86.4, -113, 0), App.Vector(0, 0, 1), 4.2),
    Part.Circle(App.Vector(-119.4, -113, 0), App.Vector(0, 0, 1), 4.2),
    Part.Circle(App.Vector(-124.4, -180.3, 0), App.Vector(0, 0, 1), 3.1),
    Part.Circle(App.Vector(-64.4, -180.3, 0), App.Vector(0, 0, 1), 3.1),
    Part.Circle(App.Vector(-64.4, -100.3, 0), App.Vector(0, 0, 1), 3.1),
    Part.Circle(App.Vector(-124.4, -100.3, 0), App.Vector(0, 0, 1), 3.1),
], False)
sketch17.addConstraint([
    Sketcher.Constraint("Equal", 0, 1),
    Sketcher.Constraint("Equal", 1, 2),
    Sketcher.Constraint("Equal", 2, 3),
    Sketcher.Constraint("Equal", 4, 5),
    Sketcher.Constraint("Equal", 5, 6),
    Sketcher.Constraint("Equal", 6, 7),
    Sketcher.Constraint("Horizontal", 0, 3, 1, 3),
    Sketcher.Constraint("Horizontal", 2, 3, 3, 3),
    Sketcher.Constraint("Horizontal", 4, 3, 5, 3),
    Sketcher.Constraint("Horizontal", 6, 3, 7, 3),
    Sketcher.Constraint("Vertical", 0, 3, 2, 3),
    Sketcher.Constraint("Vertical", 1, 3, 3, 3),
    Sketcher.Constraint("Vertical", 5, 3, 6, 3),
    Sketcher.Constraint("Vertical", 4, 3, 7, 3),
    Sketcher.Constraint("Diameter", 0, Q("0.33 in")),
    Sketcher.Constraint("Diameter", 4, Q("0.245 in")),
    Sketcher.Constraint("DistanceX", 1, 3, 0, 3, Q("1.3 in")),
    Sketcher.Constraint("DistanceY", 0, 3, 2, 3, Q("2.2 in")),
    Sketcher.Constraint("DistanceX", 0, 3, -1, 1, Q("3.4 in")),
    Sketcher.Constraint("DistanceX", 4, 3, 5, 3, Q("2.3622 in")),
    Sketcher.Constraint("DistanceY", 5, 3, 6, 3, Q("3.1496 in")),
    Sketcher.Constraint("DistanceY", 0, 3, -1, 1, Q("6.65 in")),
    Sketcher.Constraint("DistanceX", 4, 3, 1, 3, Q("5 mm")),
    Sketcher.Constraint("DistanceY", 4, 3, 1, 3, Q("11.4 mm")),
])
sketch17.setExpression("Constraints[14]", "Params.sketch17_diameter")
sketch17.setExpression("Constraints[15]", "Params.sketch17_diameter2")
pocket15 = doc.addObject("PartDesign::Pocket", "Pocket014")
body.addObject(pocket15)
pocket15.Profile = sketch17
pocket15.setExpression("Length", "Params.pocket15_length")

sketch18 = doc.addObject("Sketcher::SketchObject", "Sketch017")
body.addObject(sketch18)
sketch18.AttachmentSupport = (doc.XZ_Plane, [""])
sketch18.MapMode = "FlatFace"
sketch18.AttachmentOffset = App.Placement(App.Vector(0, 0, -0.25 * 25.4), App.Rotation())
add_polygon(sketch18, [(-118, -86), (-80, -86), (-80, -97), (-118, -97)])
sketch18.addConstraint([
    Sketcher.Constraint("Horizontal", 0),
    Sketcher.Constraint("Vertical", 1),
    Sketcher.Constraint("Horizontal", 2),
    Sketcher.Constraint("Vertical", 3),
    Sketcher.Constraint("DistanceX", 0, 1, 0, 2, Q("1.5 in")),
    Sketcher.Constraint("DistanceY", 1, 2, 1, 1, Q("0.4 in")),
    Sketcher.Constraint("DistanceY", 0, 2, -1, 1, Q("3.4 in")),
    Sketcher.Constraint("DistanceX", 0, 2, -1, 1, Q("3.15 in")),
])
sketch18.setExpression("Constraints[8]", "Params.sketch18_width")
sketch18.setExpression("Constraints[9]", "Params.sketch18_height")
pocket16 = doc.addObject("PartDesign::Pocket", "Pocket015")
body.addObject(pocket16)
pocket16.Profile = sketch18
pocket16.setExpression("Length", "Params.pocket16_length")
pocket16.Reversed = True

doc.recompute()
